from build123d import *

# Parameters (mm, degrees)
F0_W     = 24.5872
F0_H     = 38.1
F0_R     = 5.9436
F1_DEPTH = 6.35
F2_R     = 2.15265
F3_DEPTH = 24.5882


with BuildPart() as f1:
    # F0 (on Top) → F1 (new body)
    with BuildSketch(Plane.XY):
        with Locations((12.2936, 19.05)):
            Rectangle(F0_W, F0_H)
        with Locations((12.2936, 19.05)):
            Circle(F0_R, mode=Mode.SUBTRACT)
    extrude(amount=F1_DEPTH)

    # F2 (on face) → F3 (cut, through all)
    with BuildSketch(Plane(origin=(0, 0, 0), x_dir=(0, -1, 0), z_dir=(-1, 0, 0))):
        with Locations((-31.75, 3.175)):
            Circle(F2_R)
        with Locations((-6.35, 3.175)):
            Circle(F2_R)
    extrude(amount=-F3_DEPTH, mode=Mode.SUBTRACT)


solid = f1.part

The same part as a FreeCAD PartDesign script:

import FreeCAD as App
import Part
import Sketcher

V = App.Vector
Q = App.Units.Quantity


def add_polygon(sketch, points):
    """Adds a closed chain of lines whose ends are joined by coincident constraints."""
    first, n = sketch.GeometryCount, len(points)
    for a, b in zip(points, points[1:] + points[:1]):
        sketch.addGeometry(Part.LineSegment(App.Vector(*a, 0), App.Vector(*b, 0)), False)
    for i in range(n):
        sketch.addConstraint(Sketcher.Constraint("Coincident", first + i, 2, first + (i + 1) % n, 1))

doc = App.newDocument("Part")
body = doc.addObject("PartDesign::Body", "Body")

# Sketch on XY plane
sketch1 = doc.addObject("Sketcher::SketchObject", "Sketch")
body.addObject(sketch1)
sketch1.AttachmentSupport = (doc.XY_Plane, [""])
sketch1.MapMode = "FlatFace"
add_polygon(sketch1, [(0, 38), (0, 0), (25, 0), (25, 38)])  # lines 0-3
sketch1.addGeometry(Part.Circle(V(12, 19, 0), V(0, 0, 1), 6), False)  # 4
sketch1.addConstraint([
    Sketcher.Constraint("Vertical", 0),
    Sketcher.Constraint("Horizontal", 1),
    Sketcher.Constraint("Vertical", 2),
    Sketcher.Constraint("Horizontal", 3),
    Sketcher.Constraint("Coincident", 0, 2, -1, 1),
    Sketcher.Constraint("Diameter", 4, Q("0.468 in")),
    Sketcher.Constraint("DistanceY", 0, 2, 0, 1, Q("1.5 in")),
    Sketcher.Constraint("DistanceX", 1, 1, 1, 2, Q("0.968 in")),
    Sketcher.Constraint("DistanceY", -1, 1, 4, 3, Q("0.75 in")),
    Sketcher.Constraint("DistanceX", -1, 1, 4, 3, Q("0.484 in")),
])
pad1 = doc.addObject("PartDesign::Pad", "Pad")
body.addObject(pad1)
pad1.Profile = sketch1
pad1.Length = Q("0.25 in")

# Sketch on YZ plane
sketch2 = doc.addObject("Sketcher::SketchObject", "Sketch001")
body.addObject(sketch2)
sketch2.AttachmentSupport = (doc.YZ_Plane, [""])
sketch2.MapMode = "FlatFace"
sketch2.addGeometry([
    Part.Circle(V(31.8, 3.2, 0), V(0, 0, 1), 2.2),
    Part.Circle(V(6.3, 3.2, 0), V(0, 0, 1), 2.2),
], False)
sketch2.addConstraint([
    Sketcher.Constraint("Equal", 0, 1),
    Sketcher.Constraint("Horizontal", 0, 3, 1, 3),
    Sketcher.Constraint("DistanceX", 1, 3, 0, 3, Q("1 in")),
    Sketcher.Constraint("Diameter", 0, Q("0.1695 in")),
    Sketcher.Constraint("DistanceX", -1, 1, 0, 3, Q("1.25 in")),
    Sketcher.Constraint("DistanceY", -1, 1, 0, 3, Q("0.125 in")),
])
pocket1 = doc.addObject("PartDesign::Pocket", "Pocket")
body.addObject(pocket1)
pocket1.Profile = sketch2
pocket1.Type = "ThroughAll"
pocket1.Reversed = True

doc.recompute()
